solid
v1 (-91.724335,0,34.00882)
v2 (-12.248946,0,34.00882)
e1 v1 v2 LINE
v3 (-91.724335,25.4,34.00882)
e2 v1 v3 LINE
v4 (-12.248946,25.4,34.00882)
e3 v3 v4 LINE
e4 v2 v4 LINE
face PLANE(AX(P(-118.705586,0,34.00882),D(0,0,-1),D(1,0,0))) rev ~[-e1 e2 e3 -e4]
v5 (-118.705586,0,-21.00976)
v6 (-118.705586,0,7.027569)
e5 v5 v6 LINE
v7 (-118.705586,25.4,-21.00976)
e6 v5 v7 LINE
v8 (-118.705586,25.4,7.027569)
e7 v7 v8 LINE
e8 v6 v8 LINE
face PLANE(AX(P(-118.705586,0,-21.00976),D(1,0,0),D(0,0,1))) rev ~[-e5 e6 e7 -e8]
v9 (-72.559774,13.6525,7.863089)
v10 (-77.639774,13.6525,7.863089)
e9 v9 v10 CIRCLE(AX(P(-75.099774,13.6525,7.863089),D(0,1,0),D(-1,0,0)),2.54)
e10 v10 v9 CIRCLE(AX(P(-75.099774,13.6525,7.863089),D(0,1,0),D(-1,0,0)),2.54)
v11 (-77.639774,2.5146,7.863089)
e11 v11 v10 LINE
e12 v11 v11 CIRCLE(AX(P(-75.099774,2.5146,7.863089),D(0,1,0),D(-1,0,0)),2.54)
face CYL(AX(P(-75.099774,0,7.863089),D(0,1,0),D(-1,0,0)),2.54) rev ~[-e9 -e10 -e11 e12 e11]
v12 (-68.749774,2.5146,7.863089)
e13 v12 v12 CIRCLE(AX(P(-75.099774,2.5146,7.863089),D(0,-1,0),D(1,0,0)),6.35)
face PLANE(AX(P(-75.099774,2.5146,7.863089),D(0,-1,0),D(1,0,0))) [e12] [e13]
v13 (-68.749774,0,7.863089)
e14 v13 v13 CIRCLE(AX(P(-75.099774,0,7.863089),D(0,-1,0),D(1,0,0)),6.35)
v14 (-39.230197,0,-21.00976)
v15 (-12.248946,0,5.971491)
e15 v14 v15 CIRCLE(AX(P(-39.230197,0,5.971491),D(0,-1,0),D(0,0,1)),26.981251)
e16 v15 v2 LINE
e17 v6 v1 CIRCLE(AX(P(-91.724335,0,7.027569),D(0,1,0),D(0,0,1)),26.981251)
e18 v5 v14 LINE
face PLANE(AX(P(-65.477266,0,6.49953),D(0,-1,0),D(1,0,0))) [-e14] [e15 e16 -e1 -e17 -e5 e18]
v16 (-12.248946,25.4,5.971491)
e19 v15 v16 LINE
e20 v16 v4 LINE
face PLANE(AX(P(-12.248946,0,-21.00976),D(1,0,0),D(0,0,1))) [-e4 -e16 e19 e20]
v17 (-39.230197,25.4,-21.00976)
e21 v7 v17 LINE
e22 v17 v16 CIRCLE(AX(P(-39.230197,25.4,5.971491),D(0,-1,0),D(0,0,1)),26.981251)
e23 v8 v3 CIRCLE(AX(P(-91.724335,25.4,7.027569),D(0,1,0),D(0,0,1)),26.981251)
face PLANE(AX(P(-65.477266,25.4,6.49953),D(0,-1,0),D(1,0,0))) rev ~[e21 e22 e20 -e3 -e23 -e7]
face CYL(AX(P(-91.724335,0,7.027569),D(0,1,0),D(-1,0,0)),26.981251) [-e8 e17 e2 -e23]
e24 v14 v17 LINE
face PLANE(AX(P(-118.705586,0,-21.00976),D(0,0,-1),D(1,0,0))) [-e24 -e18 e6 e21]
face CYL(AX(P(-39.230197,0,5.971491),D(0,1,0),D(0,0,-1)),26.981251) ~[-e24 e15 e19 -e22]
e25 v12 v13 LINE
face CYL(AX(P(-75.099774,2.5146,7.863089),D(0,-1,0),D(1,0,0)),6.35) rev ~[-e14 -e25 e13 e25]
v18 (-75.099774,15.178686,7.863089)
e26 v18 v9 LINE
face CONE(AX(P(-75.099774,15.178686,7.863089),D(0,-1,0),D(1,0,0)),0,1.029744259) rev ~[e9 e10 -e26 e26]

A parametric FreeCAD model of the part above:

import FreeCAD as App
import Part
import Sketcher
Q = App.Units.Quantity


def edges_at(feature, points):
    """Names of the edges that pass closest to the given points."""
    edges = feature.Shape.Edges
    near = lambda p: min(range(len(edges)), key=lambda i: edges[i].distToShape(Part.Vertex(*p))[0])
    return sorted({f"Edge{near(p) + 1}" for p in points})

doc = App.newDocument("Part")
body = doc.addObject("PartDesign::Body", "Body")

sketch1 = body.newObject("Sketcher::SketchObject", "Sketch")
sketch1.AttachmentSupport = (doc.getObject("XZ_Plane"), [""])
sketch1.MapMode = "FlatFace"
sketch1.addGeometry([
    Part.LineSegment(App.Vector(-118.705586, 34.00882, 0), App.Vector(-118.705586, -21.00976, 0)),
    Part.LineSegment(App.Vector(-118.705586, -21.00976, 0), App.Vector(-12.248946, -21.00976, 0)),
    Part.LineSegment(App.Vector(-12.248946, -21.00976, 0), App.Vector(-12.248946, 34.00882, 0)),
    Part.LineSegment(App.Vector(-12.248946, 34.00882, 0), App.Vector(-118.705586, 34.00882, 0)),
], False)
sketch1.addConstraint([
    Sketcher.Constraint("Coincident", 0, 2, 1, 1),
    Sketcher.Constraint("Coincident", 1, 2, 2, 1),
    Sketcher.Constraint("Coincident", 2, 2, 3, 1),
    Sketcher.Constraint("Coincident", 3, 2, 0, 1),
    Sketcher.Constraint("Vertical", 0),
    Sketcher.Constraint("Horizontal", 1),
    Sketcher.Constraint("Vertical", 2),
    Sketcher.Constraint("Horizontal", 3),
    Sketcher.Constraint("DistanceX", 1, 1, 1, 2, 106.456639),
    Sketcher.Constraint("DistanceY", 0, 2, 0, 1, 55.01858),
    Sketcher.Constraint("DistanceY", 0, 2, -1, 1, 21.00976),
    Sketcher.Constraint("DistanceX", 0, 2, -1, 1, 118.705586),
])
pad1 = body.newObject("PartDesign::Pad", "Pad")
pad1.Profile = sketch1
pad1.Length = Q("1 in")
pad1.Reversed = True
doc.recompute()

fillet = body.newObject("PartDesign::Fillet", "Fillet")
fillet.Base = (pad1, edges_at(pad1, [(-12.249, 12.7, -21.01), (-118.706, 12.7, 34.009)]))
fillet.Radius = 26.981251

sketch2 = body.newObject("Sketcher::SketchObject", "Sketch001")
sketch2.AttachmentSupport = (doc.getObject("XZ_Plane"), [""])
sketch2.MapMode = "FlatFace"
sketch2.addGeometry(Part.Circle(App.Vector(-75.099774, 7.863089, 0), App.Vector(0, 0, 1), 2.54), False)
sketch2.addConstraint([
    Sketcher.Constraint("Diameter", 0, Q("0.2 in")),
    Sketcher.Constraint("DistanceY", -1, 1, 0, 3, 7.863089),
    Sketcher.Constraint("DistanceX", 0, 3, -1, 1, 75.099774),
])
doc.recompute()
hole = body.newObject("PartDesign::Hole", "Hole")
hole.Profile = sketch2
hole.ThreadType = "None"
hole.Diameter = Q("0.2 in")
hole.DepthType = "Dimension"
hole.Depth = Q("0.5375 in")
hole.DrillPoint = "Angled"
hole.DrillPointAngle = 118
hole.HoleCutType = "Counterbore"
hole.HoleCutDiameter = Q("0.5 in")
hole.HoleCutDepth = Q("0.099 in")

doc.recompute()
